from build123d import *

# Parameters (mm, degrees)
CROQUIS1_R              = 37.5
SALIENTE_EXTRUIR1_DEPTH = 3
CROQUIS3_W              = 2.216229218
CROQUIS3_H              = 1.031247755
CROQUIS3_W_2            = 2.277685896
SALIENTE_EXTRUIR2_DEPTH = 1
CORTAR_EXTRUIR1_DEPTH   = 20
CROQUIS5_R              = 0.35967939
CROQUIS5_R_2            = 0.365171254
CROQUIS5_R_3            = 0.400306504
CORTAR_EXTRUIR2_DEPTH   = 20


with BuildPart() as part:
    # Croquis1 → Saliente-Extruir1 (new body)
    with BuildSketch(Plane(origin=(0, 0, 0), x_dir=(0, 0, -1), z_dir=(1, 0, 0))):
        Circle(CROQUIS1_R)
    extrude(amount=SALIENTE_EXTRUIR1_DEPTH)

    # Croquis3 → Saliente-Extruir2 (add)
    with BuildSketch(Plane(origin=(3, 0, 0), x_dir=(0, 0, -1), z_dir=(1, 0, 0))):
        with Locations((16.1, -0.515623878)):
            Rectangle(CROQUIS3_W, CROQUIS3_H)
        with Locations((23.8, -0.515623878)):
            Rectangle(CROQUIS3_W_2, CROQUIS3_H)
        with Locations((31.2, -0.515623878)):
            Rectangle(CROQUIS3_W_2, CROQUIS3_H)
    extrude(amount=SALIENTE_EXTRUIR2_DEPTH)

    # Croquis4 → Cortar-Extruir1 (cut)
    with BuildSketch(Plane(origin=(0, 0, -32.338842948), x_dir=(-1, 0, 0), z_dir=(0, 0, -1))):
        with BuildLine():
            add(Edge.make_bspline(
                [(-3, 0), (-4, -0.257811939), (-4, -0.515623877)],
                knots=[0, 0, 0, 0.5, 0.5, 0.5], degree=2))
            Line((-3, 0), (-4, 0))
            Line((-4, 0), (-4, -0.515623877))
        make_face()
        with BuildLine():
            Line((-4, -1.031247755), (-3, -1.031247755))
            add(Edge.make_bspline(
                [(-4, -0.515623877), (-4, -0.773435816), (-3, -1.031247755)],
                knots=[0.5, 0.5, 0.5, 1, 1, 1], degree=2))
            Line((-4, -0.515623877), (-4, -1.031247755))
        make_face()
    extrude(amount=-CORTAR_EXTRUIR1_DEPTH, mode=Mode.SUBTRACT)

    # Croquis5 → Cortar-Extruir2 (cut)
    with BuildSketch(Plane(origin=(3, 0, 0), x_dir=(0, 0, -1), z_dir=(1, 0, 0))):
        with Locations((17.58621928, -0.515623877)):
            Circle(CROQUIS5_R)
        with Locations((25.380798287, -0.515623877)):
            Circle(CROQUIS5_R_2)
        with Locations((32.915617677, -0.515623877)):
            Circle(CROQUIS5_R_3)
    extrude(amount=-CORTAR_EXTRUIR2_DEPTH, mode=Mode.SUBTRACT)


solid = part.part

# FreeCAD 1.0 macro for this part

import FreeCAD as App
import Part
import Sketcher
from FreeCAD import Vector
Q = App.Units.Quantity


def add_polygon(sketch, points):
    """Adds a closed chain of lines whose ends are joined by coincident constraints."""
    first, n = sketch.GeometryCount, len(points)
    for a, b in zip(points, points[1:] + points[:1]):
        sketch.addGeometry(Part.LineSegment(App.Vector(*a, 0), App.Vector(*b, 0)), False)
    for i in range(n):
        sketch.addConstraint(Sketcher.Constraint("Coincident", first + i, 2, first + (i + 1) % n, 1))

doc = App.newDocument("Part")
body = doc.addObject("PartDesign::Body", "Body")

sketch1 = doc.addObject("Sketcher::SketchObject", "Sketch")
body.addObject(sketch1)
sketch1.AttachmentSupport = (doc.YZ_Plane, [""])
sketch1.MapMode = "FlatFace"
sketch1.addGeometry(Part.Circle(Vector(0, 0, 0), Vector(0, 0, 1), 38), False)
sketch1.addConstraint(Sketcher.Constraint("Coincident", 0, 3, -1, 1))
sketch1.addConstraint(Sketcher.Constraint("Diameter", 0, Q("75 mm")))
pad1 = doc.addObject("PartDesign::Pad", "Pad")
body.addObject(pad1)
pad1.Profile = sketch1
pad1.Length = 3

sketch2 = doc.addObject("Sketcher::SketchObject", "Sketch001")
body.addObject(sketch2)
sketch2.AttachmentSupport = (doc.YZ_Plane, [""])
sketch2.MapMode = "FlatFace"
sketch2.AttachmentOffset = App.Placement(Vector(0, 0, 3), App.Rotation())
add_polygon(sketch2, [(0, -15), (-1, -15), (-1, -17.2), (0, -17.2)])
add_polygon(sketch2, [(0, -22.7), (-1, -22.7), (-1, -24.9), (0, -24.9)])
add_polygon(sketch2, [(0, -30.1), (-1, -30.1), (-1, -32.3), (0, -32.3)])
sketch2.addConstraint(Sketcher.Constraint("Horizontal", 0))
sketch2.addConstraint(Sketcher.Constraint("Vertical", 1))
sketch2.addConstraint(Sketcher.Constraint("Horizontal", 2))
sketch2.addConstraint(Sketcher.Constraint("Vertical", 3))
sketch2.addConstraint(Sketcher.Constraint("Horizontal", 4))
sketch2.addConstraint(Sketcher.Constraint("Vertical", 5))
sketch2.addConstraint(Sketcher.Constraint("Horizontal", 6))
sketch2.addConstraint(Sketcher.Constraint("Vertical", 7))
sketch2.addConstraint(Sketcher.Constraint("Horizontal", 8))
sketch2.addConstraint(Sketcher.Constraint("Vertical", 9))
sketch2.addConstraint(Sketcher.Constraint("Horizontal", 10))
sketch2.addConstraint(Sketcher.Constraint("Vertical", 11))
sketch2.addConstraint(Sketcher.Constraint("PointOnObject", 2, 2, -2))
sketch2.addConstraint(Sketcher.Constraint("PointOnObject", 6, 2, -2))
sketch2.addConstraint(Sketcher.Constraint("PointOnObject", 10, 2, -2))
sketch2.addConstraint(Sketcher.Constraint("Vertical", 1, 2, 4, 2))
sketch2.addConstraint(Sketcher.Constraint("Vertical", 5, 2, 8, 2))
sketch2.addConstraint(Sketcher.Constraint("Equal", 7, 9))
sketch2.addConstraint(Sketcher.Constraint("DistanceY", 8, 2, 4, 2, Q("7.4 mm")))
sketch2.addConstraint(Sketcher.Constraint("DistanceY", 1, 2, 1, 1, Q("2.216229 mm")))
sketch2.addConstraint(Sketcher.Constraint("DistanceX", 0, 2, 0, 1, Q("1.031248 mm")))
sketch2.addConstraint(Sketcher.Constraint("DistanceY", 5, 2, 5, 1, Q("2.277686 mm")))
sketch2.addConstraint(Sketcher.Constraint("DistanceY", 4, 2, 0, 2, Q("7.669272 mm")))
sketch2.addConstraint(Sketcher.Constraint("DistanceY", 0, 2, -1, 1, Q("14.991885 mm")))
pad2 = doc.addObject("PartDesign::Pad", "Pad001")
body.addObject(pad2)
pad2.Profile = sketch2
pad2.Length = 1

sketch3 = doc.addObject("Sketcher::SketchObject", "Sketch002")
body.addObject(sketch3)
sketch3.AttachmentSupport = (doc.XY_Plane, [""])
sketch3.MapMode = "FlatFace"
sketch3.AttachmentOffset = App.Placement(Vector(0, 0, -32.338843), App.Rotation())
sketch3.addGeometry(Part.BSplineCurve([Vector(3, 0, 0), Vector(4, -0.257812, 0), Vector(4, -0.515624, 0)], [3, 3], [0, 0.5], False, 2, [1, 1, 1], False), False)
sketch3.addGeometry(Part.LineSegment(Vector(3, 0, 0), Vector(4, 0, 0)), False)
sketch3.addGeometry(Part.LineSegment(Vector(4, 0, 0), Vector(4, -0.515624, 0)), False)
sketch3.addGeometry(Part.LineSegment(Vector(4, -1.031248, 0), Vector(3, -1.031248, 0)), False)
sketch3.addGeometry(Part.BSplineCurve([Vector(4, -0.515624, 0), Vector(4, -0.773436, 0), Vector(3, -1.031248, 0)], [3, 3], [0.5, 1], False, 2, [1, 1, 1], False), False)
sketch3.addGeometry(Part.LineSegment(Vector(4, -0.515624, 0), Vector(4, -1.031248, 0)), False)
sketch3.addConstraint(Sketcher.Constraint("Block", 0))
sketch3.addConstraint(Sketcher.Constraint("Block", 4))
sketch3.addConstraint(Sketcher.Constraint("Coincident", 0, 1, 1, 1))
sketch3.addConstraint(Sketcher.Constraint("Coincident", 1, 2, 2, 1))
sketch3.addConstraint(Sketcher.Constraint("Coincident", 2, 2, 0, 2))
sketch3.addConstraint(Sketcher.Constraint("Coincident", 3, 2, 4, 2))
sketch3.addConstraint(Sketcher.Constraint("Coincident", 4, 1, 5, 1))
sketch3.addConstraint(Sketcher.Constraint("Coincident", 5, 2, 3, 1))
sketch3.addConstraint(Sketcher.Constraint("Horizontal", 1))
sketch3.addConstraint(Sketcher.Constraint("Vertical", 2))
sketch3.addConstraint(Sketcher.Constraint("Horizontal", 3))
sketch3.addConstraint(Sketcher.Constraint("Vertical", 5))
pocket1 = doc.addObject("PartDesign::Pocket", "Pocket")
body.addObject(pocket1)
pocket1.Profile = sketch3
pocket1.Length = 20
pocket1.Reversed = True

sketch4 = doc.addObject("Sketcher::SketchObject", "Sketch003")
body.addObject(sketch4)
sketch4.AttachmentSupport = (doc.YZ_Plane, [""])
sketch4.MapMode = "FlatFace"
sketch4.AttachmentOffset = App.Placement(Vector(0, 0, 3), App.Rotation())
sketch4.addGeometry(Part.Circle(Vector(-0.52, -17.59, 0), Vector(0, 0, 1), 0.36), False)
sketch4.addGeometry(Part.Circle(Vector(-0.52, -25.38, 0), Vector(0, 0, 1), 0.37), False)
sketch4.addGeometry(Part.Circle(Vector(-0.52, -32.92, 0), Vector(0, 0, 1), 0.4), False)
sketch4.addConstraint(Sketcher.Constraint("Vertical", 0, 3, 1, 3))
sketch4.addConstraint(Sketcher.Constraint("Vertical", 1, 3, 2, 3))
sketch4.addConstraint(Sketcher.Constraint("Diameter", 0, Q("0.719359 mm")))
sketch4.addConstraint(Sketcher.Constraint("Diameter", 1, Q("0.730343 mm")))
sketch4.addConstraint(Sketcher.Constraint("Diameter", 2, Q("0.800613 mm")))
sketch4.addConstraint(Sketcher.Constraint("DistanceY", 1, 3, -1, 1, Q("25.380798 mm")))
sketch4.addConstraint(Sketcher.Constraint("DistanceY", 2, 3, 0, 3, Q("15.329398 mm")))
sketch4.addConstraint(Sketcher.Constraint("DistanceY", 0, 3, -1, 1, Q("17.586219 mm")))
sketch4.addConstraint(Sketcher.Constraint("DistanceX", 0, 3, -1, 1, Q("0.515624 mm")))
pocket2 = doc.addObject("PartDesign::Pocket", "Pocket001")
body.addObject(pocket2)
pocket2.Profile = sketch4
pocket2.Length = 20

doc.recompute()
